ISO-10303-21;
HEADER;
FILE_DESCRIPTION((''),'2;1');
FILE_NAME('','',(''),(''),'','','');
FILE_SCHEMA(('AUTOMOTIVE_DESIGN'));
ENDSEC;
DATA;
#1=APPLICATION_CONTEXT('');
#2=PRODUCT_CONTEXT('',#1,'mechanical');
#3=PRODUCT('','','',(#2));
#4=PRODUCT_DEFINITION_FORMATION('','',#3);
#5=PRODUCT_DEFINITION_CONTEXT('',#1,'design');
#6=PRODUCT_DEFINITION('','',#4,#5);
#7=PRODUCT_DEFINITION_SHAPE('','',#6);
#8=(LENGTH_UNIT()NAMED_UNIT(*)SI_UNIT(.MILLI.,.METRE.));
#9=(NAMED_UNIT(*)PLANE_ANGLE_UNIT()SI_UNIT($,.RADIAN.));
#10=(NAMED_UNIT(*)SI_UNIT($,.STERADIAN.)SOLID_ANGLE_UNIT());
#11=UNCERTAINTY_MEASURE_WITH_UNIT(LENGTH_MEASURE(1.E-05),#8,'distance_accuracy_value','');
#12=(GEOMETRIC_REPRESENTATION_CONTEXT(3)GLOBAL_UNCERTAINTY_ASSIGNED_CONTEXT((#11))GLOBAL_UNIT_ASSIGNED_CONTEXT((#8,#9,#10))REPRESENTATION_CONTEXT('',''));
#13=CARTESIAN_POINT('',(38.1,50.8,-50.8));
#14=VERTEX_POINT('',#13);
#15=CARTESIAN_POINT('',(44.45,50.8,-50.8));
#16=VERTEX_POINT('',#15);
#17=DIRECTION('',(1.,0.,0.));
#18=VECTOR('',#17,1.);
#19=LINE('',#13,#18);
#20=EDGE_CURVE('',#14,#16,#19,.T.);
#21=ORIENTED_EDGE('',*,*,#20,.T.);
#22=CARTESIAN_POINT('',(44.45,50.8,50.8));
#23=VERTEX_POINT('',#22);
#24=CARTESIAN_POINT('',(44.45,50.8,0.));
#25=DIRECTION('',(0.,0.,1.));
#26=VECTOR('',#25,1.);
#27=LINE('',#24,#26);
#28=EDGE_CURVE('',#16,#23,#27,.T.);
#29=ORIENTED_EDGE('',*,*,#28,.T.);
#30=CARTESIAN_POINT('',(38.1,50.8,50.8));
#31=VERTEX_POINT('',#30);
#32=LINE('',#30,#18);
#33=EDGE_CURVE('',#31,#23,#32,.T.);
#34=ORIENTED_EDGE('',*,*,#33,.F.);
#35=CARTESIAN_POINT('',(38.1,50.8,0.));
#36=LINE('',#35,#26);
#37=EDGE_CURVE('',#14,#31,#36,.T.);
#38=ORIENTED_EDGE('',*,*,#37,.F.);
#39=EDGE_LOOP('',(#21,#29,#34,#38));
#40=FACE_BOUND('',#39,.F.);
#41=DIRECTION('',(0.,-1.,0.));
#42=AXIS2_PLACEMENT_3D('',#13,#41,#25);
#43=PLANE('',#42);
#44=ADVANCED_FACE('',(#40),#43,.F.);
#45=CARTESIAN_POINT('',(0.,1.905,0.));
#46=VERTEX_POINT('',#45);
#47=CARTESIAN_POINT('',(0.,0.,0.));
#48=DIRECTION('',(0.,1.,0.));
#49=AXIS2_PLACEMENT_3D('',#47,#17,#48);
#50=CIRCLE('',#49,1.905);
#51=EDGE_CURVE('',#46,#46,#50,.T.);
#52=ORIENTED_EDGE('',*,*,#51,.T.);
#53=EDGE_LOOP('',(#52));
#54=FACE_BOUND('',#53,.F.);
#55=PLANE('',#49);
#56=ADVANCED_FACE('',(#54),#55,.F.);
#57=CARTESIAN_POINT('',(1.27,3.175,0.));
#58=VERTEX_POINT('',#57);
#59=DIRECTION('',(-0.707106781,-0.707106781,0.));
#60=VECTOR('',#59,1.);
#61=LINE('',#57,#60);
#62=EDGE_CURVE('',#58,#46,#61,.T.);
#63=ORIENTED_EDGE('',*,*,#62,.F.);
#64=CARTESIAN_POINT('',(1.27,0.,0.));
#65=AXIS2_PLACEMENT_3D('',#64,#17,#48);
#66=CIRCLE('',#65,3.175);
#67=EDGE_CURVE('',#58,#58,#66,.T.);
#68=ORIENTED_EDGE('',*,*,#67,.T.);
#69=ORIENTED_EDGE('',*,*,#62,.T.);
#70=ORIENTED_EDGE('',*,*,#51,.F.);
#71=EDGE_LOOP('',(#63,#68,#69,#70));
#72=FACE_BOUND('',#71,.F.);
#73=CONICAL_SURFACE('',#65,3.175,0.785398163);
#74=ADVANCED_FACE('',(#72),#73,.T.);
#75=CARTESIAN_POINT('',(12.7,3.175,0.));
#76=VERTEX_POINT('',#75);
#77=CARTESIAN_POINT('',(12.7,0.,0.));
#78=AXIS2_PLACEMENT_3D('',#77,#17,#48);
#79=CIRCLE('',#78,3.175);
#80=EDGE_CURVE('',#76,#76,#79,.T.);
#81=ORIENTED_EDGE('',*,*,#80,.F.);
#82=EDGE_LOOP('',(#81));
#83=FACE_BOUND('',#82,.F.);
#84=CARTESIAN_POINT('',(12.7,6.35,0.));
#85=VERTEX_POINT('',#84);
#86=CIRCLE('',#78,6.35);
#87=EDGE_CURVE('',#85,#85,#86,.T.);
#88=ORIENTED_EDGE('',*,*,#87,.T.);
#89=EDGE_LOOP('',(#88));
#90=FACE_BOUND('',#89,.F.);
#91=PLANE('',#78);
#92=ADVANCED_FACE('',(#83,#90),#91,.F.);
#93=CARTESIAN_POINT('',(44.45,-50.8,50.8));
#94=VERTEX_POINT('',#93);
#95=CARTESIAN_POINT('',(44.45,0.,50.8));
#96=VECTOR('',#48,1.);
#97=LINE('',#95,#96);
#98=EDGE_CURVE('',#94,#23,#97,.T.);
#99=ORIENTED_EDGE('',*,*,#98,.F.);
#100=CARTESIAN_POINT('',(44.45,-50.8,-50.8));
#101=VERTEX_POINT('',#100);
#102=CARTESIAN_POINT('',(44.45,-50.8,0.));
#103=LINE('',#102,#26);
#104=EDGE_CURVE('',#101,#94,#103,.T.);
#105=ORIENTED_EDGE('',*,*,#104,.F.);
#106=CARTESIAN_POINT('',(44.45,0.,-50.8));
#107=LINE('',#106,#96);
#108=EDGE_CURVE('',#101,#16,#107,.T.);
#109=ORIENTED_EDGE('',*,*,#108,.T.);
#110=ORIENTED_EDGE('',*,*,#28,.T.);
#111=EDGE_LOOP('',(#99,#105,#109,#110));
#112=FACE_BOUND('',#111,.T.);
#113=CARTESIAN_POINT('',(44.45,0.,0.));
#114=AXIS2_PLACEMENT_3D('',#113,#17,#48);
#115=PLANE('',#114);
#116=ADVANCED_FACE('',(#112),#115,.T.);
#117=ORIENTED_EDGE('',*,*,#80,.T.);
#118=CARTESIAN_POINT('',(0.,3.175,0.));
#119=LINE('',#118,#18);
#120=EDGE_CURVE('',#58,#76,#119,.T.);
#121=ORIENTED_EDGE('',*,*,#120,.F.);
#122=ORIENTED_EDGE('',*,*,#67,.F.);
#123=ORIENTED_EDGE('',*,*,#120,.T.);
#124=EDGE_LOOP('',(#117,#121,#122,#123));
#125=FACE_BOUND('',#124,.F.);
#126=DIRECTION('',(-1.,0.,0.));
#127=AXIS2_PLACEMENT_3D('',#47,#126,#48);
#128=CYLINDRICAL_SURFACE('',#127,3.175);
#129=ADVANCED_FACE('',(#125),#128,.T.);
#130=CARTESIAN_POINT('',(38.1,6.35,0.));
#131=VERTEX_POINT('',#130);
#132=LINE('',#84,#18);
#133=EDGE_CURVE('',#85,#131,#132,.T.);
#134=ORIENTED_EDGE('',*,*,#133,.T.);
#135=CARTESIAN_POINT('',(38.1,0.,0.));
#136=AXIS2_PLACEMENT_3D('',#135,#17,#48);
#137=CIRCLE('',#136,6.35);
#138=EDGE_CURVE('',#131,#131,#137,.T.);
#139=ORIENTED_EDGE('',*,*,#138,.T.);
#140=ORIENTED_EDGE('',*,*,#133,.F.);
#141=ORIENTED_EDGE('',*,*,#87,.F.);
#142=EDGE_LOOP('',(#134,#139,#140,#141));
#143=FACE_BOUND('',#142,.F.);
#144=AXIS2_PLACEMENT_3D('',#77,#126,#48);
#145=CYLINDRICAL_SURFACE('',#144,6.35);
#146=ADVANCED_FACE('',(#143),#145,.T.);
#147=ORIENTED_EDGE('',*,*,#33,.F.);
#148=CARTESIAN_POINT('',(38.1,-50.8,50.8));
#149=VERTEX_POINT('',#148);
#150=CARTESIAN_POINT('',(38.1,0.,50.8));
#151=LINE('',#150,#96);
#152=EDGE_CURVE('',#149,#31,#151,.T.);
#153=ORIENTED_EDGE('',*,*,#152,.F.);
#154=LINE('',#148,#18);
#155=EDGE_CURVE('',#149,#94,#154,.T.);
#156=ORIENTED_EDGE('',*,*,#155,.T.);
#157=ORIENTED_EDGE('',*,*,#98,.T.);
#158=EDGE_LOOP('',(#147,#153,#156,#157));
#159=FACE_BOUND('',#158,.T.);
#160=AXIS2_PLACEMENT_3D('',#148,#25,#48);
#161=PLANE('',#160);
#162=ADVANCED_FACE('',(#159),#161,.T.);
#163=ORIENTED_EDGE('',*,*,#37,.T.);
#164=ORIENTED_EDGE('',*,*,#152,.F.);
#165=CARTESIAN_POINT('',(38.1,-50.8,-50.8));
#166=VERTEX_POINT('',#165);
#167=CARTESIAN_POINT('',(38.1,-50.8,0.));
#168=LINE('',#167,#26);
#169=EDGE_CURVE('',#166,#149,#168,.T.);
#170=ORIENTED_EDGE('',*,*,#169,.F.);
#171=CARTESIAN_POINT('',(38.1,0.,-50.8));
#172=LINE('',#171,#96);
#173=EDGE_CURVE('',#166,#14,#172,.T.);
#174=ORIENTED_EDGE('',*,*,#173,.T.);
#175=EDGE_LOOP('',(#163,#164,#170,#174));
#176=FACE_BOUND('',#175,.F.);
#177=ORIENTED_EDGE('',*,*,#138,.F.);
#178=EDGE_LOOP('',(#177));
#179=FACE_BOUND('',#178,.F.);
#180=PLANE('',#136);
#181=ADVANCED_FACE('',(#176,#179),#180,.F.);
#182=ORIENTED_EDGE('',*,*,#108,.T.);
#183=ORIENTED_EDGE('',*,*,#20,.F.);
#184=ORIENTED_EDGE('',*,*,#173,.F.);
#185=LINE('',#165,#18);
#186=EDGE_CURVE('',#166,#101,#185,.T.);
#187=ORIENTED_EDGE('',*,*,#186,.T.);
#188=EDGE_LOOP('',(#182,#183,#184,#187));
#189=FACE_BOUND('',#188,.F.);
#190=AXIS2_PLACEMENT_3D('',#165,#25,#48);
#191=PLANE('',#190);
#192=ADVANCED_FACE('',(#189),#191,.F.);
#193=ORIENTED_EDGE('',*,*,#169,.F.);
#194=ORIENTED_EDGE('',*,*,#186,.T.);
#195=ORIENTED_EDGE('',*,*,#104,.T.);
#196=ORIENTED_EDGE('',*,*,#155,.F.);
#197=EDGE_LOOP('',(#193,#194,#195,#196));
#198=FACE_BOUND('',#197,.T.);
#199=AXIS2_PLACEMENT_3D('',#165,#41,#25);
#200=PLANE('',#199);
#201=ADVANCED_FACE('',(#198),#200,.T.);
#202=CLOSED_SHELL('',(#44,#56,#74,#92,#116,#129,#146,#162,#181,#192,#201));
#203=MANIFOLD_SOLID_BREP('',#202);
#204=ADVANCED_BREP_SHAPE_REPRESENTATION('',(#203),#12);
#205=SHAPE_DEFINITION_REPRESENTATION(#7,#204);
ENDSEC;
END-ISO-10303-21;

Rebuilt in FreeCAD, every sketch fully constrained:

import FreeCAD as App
import Part
import Sketcher

V = App.Vector
Q = App.Units.Quantity


def edges_at(feature, points):
    """Names of the edges that pass closest to the given points."""
    edges = feature.Shape.Edges
    near = lambda p: min(range(len(edges)), key=lambda i: edges[i].distToShape(Part.Vertex(*p))[0])
    return sorted({f"Edge{near(p) + 1}" for p in points})

doc = App.newDocument("Part")
body = doc.addObject("PartDesign::Body", "Body")

sketch1 = body.newObject("Sketcher::SketchObject", "Sketch")
sketch1.AttachmentSupport = (doc.getObject("YZ_Plane"), [""])
sketch1.MapMode = "FlatFace"
sketch1.addGeometry(Part.Circle(V(0, 0, 0), V(0, 0, 1), 3.2), False)
sketch1.addConstraint(Sketcher.Constraint("Coincident", 0, 3, -1, 1))
sketch1.addConstraint(Sketcher.Constraint("Diameter", 0, Q("0.25 in")))
pad1 = body.newObject("PartDesign::Pad", "Pad")
pad1.Profile = sketch1
pad1.Length = Q("0.5 in")
doc.recompute()

chamfer = body.newObject("PartDesign::Chamfer", "Chamfer")
chamfer.Base = (pad1, edges_at(pad1, [(0, -3.175, 0)]))
chamfer.Size = Q("0.05 in")

sketch2 = body.newObject("Sketcher::SketchObject", "Sketch001")
sketch2.AttachmentSupport = (doc.getObject("YZ_Plane"), [""])
sketch2.MapMode = "FlatFace"
sketch2.AttachmentOffset = App.Placement(V(0, 0, 0.5 * 25.4), App.Rotation())
sketch2.addGeometry(Part.Circle(V(0, 0, 0), V(0, 0, 1), 6), False)
sketch2.addConstraint(Sketcher.Constraint("Coincident", 0, 3, -1, 1))
sketch2.addConstraint(Sketcher.Constraint("Diameter", 0, Q("0.5 in")))
pad2 = body.newObject("PartDesign::Pad", "Pad001")
pad2.Profile = sketch2
pad2.Length = Q("1 in")

sketch3 = body.newObject("Sketcher::SketchObject", "Sketch002")
sketch3.AttachmentSupport = (doc.getObject("YZ_Plane"), [""])
sketch3.MapMode = "FlatFace"
sketch3.AttachmentOffset = App.Placement(V(0, 0, 1.5 * 25.4), App.Rotation())
sketch3.addGeometry(Part.LineSegment(V(-51, 51, 0), V(-51, -51, 0)), False)
sketch3.addGeometry(Part.LineSegment(V(-51, -51, 0), V(51, -51, 0)), False)
sketch3.addGeometry(Part.LineSegment(V(51, -51, 0), V(51, 51, 0)), False)
sketch3.addGeometry(Part.LineSegment(V(51, 51, 0), V(-51, 51, 0)), False)
sketch3.addConstraint(Sketcher.Constraint("Coincident", 0, 2, 1, 1))
sketch3.addConstraint(Sketcher.Constraint("Coincident", 1, 2, 2, 1))
sketch3.addConstraint(Sketcher.Constraint("Coincident", 2, 2, 3, 1))
sketch3.addConstraint(Sketcher.Constraint("Coincident", 3, 2, 0, 1))
sketch3.addConstraint(Sketcher.Constraint("Vertical", 0))
sketch3.addConstraint(Sketcher.Constraint("Horizontal", 1))
sketch3.addConstraint(Sketcher.Constraint("Vertical", 2))
sketch3.addConstraint(Sketcher.Constraint("Horizontal", 3))
sketch3.addConstraint(Sketcher.Constraint("Symmetric", 0, 2, 2, 2, -1, 1))
sketch3.addConstraint(Sketcher.Constraint("Equal", 3, 0))
sketch3.addConstraint(Sketcher.Constraint("DistanceX", 1, 1, 1, 2, Q("4 in")))
pad3 = body.newObject("PartDesign::Pad", "Pad002")
pad3.Profile = sketch3
pad3.Length = Q("0.25 in")

doc.recompute()
